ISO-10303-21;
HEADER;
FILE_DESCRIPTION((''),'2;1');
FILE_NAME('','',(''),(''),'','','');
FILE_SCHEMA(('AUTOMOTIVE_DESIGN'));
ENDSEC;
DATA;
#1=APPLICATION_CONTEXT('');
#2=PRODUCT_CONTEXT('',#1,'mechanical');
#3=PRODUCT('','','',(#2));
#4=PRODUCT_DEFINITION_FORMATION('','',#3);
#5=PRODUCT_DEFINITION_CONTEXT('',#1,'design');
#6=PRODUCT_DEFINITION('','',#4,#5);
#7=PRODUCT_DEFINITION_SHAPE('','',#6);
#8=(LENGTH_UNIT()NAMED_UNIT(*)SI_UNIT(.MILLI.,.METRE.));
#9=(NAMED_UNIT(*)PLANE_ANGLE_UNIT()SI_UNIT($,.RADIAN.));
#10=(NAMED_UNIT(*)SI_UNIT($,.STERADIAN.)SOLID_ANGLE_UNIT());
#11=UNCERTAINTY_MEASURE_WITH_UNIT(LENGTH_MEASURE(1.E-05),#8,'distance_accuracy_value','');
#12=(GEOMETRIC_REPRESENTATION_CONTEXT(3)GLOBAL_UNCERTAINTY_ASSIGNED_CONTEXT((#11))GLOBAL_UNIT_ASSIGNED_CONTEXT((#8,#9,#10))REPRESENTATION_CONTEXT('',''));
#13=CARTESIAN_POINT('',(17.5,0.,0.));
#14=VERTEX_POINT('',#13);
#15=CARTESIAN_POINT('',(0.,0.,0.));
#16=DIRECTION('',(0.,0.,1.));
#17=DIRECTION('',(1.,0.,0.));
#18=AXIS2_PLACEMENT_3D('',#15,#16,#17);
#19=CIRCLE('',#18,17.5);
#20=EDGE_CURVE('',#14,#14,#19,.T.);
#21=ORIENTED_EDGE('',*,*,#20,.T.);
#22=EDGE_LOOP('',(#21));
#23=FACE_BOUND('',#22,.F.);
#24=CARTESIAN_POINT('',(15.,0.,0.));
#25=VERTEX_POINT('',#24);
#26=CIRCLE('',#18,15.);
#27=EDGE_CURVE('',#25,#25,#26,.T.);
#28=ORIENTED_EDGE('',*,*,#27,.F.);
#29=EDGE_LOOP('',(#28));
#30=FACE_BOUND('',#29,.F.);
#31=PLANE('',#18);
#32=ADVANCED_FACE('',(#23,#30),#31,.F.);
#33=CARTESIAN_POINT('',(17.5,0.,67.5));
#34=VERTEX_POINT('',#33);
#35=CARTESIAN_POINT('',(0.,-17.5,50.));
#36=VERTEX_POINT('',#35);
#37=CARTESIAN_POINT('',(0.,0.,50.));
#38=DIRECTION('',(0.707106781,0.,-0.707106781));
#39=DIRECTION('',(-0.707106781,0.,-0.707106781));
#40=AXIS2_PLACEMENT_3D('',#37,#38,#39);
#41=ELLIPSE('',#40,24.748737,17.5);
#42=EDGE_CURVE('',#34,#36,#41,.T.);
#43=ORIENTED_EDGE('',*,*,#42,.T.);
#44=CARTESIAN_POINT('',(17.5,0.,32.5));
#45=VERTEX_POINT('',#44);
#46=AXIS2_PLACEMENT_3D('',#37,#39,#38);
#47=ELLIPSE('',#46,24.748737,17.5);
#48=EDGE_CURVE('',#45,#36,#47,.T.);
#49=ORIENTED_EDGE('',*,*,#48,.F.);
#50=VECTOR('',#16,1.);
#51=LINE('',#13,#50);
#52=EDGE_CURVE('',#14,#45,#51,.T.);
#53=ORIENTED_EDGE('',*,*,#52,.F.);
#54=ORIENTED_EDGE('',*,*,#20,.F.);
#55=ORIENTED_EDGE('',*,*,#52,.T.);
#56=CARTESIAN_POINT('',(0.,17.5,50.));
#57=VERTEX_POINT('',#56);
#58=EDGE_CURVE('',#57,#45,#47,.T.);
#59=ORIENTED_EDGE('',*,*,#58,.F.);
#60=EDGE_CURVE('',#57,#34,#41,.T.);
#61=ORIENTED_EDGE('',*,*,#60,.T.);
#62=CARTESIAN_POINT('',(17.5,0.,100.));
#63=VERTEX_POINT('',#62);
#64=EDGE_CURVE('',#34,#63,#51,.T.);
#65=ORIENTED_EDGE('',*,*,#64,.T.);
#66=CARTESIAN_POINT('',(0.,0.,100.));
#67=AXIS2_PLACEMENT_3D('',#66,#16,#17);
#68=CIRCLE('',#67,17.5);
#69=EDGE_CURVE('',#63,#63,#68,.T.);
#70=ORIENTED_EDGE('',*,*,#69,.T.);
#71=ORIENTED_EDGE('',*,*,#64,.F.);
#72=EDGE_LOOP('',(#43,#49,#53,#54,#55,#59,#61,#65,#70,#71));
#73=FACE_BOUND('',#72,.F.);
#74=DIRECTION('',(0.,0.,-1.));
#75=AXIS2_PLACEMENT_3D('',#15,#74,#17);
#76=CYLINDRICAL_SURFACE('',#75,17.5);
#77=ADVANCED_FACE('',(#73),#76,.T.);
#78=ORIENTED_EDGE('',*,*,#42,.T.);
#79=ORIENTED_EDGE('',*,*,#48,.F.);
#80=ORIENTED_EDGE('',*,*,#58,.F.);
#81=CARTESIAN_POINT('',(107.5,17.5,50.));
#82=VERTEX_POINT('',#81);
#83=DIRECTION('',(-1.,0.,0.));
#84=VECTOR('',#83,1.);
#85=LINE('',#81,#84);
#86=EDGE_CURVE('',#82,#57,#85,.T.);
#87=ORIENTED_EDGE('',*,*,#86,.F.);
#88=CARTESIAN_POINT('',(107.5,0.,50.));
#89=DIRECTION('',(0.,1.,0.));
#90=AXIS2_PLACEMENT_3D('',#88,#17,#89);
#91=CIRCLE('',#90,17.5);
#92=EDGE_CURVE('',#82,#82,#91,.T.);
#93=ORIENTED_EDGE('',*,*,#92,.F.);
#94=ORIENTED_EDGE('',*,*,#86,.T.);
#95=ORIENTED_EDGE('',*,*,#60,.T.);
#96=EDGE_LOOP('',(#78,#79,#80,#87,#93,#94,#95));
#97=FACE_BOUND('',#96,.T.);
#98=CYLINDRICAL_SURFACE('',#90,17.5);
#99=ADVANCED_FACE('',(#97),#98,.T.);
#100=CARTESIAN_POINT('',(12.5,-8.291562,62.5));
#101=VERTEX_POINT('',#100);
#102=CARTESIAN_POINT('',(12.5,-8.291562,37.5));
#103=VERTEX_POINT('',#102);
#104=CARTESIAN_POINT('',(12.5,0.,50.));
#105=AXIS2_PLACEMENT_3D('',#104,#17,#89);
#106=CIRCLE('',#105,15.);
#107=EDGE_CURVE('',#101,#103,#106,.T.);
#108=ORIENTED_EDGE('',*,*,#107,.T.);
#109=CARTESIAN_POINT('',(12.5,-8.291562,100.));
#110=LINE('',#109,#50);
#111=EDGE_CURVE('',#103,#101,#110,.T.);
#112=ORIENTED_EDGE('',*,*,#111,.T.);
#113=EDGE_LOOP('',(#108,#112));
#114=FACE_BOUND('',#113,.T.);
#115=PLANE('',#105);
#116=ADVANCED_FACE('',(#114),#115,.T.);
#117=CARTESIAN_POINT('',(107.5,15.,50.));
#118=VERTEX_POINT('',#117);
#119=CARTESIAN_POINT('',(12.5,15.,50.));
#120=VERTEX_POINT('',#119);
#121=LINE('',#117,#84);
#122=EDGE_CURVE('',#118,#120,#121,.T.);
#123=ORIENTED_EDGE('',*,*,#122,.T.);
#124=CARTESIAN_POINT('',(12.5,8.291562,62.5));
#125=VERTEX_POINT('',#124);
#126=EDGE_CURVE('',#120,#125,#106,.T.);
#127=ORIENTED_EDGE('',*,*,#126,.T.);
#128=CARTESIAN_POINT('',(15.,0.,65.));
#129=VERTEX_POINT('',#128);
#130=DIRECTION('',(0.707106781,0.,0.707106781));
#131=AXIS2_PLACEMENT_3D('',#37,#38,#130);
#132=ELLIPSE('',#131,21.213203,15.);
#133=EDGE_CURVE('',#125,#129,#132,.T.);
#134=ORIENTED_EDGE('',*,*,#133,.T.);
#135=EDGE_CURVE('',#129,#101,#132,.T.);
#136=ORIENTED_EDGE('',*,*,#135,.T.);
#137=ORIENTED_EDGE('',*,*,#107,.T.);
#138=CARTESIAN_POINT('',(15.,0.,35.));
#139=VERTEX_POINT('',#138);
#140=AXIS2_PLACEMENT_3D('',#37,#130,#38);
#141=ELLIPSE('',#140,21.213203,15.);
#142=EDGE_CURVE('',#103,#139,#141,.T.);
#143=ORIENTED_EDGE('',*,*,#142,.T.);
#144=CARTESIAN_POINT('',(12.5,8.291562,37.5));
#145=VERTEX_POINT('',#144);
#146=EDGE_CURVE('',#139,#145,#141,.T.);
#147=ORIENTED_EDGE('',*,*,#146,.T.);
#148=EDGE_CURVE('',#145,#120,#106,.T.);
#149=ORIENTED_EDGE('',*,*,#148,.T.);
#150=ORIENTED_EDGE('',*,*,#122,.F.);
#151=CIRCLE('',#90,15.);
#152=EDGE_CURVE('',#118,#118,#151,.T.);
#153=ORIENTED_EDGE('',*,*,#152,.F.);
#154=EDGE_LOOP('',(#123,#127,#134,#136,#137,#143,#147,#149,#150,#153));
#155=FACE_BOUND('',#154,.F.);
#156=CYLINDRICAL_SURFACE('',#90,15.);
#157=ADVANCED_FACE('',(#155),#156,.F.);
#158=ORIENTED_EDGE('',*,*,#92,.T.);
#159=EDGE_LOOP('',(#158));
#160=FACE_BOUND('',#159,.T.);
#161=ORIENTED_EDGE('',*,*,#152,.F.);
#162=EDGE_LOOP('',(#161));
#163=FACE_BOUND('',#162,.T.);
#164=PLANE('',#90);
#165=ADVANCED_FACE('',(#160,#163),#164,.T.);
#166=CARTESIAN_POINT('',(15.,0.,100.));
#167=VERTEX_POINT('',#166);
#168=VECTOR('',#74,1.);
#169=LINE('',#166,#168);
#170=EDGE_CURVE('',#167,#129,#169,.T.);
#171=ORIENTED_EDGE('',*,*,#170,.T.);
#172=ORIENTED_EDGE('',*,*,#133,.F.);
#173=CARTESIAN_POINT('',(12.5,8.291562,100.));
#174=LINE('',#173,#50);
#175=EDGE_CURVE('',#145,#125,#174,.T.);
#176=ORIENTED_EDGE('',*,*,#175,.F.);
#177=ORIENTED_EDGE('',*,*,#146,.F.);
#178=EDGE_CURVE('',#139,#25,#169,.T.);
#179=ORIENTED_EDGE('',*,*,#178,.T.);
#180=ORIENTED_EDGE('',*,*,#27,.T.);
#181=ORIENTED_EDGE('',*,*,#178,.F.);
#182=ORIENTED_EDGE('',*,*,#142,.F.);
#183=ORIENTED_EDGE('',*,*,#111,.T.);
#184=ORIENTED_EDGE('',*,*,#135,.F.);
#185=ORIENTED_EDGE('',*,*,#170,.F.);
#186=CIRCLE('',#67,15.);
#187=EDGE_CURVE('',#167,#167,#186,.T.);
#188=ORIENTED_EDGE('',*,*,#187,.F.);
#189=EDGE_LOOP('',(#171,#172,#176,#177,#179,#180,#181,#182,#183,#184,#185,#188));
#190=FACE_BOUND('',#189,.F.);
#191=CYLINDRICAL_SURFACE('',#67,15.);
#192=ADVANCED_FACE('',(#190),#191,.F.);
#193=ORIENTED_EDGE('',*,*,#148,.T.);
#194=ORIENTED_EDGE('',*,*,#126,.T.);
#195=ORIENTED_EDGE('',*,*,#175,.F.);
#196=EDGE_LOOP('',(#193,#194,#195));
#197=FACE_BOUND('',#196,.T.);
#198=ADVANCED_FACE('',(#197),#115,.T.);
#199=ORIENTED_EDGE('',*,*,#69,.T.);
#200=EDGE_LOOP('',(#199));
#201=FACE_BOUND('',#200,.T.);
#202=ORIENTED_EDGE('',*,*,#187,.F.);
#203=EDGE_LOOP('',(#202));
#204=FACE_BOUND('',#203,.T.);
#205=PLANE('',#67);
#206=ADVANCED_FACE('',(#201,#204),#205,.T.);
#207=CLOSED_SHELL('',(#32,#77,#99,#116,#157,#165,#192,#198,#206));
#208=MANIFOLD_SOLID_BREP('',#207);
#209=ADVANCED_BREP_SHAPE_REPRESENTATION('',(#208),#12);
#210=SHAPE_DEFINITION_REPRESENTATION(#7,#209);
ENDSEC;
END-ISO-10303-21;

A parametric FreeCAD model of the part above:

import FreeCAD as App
import Part
import Sketcher
from FreeCAD import Vector
Q = App.Units.Quantity

doc = App.newDocument("Part")
body = doc.addObject("PartDesign::Body", "Body")

# Sketch on XY plane
sketch1 = body.newObject("Sketcher::SketchObject", "Sketch")
sketch1.AttachmentSupport = (doc.getObject("XY_Plane"), [""])
sketch1.MapMode = "FlatFace"
sketch1.addGeometry(Part.Circle(Vector(0, 0, 0), Vector(0, 0, 1), 18), False)
sketch1.addConstraint(Sketcher.Constraint("Coincident", 0, 3, -1, 1))
sketch1.addConstraint(Sketcher.Constraint("Diameter", 0, Q("35 mm")))
pad1 = body.newObject("PartDesign::Pad", "Pad")
pad1.Profile = sketch1
pad1.Length = 100

# Sketch on YZ plane
sketch2 = body.newObject("Sketcher::SketchObject", "Sketch001")
sketch2.AttachmentSupport = (doc.getObject("YZ_Plane"), [""])
sketch2.MapMode = "FlatFace"
sketch2.AttachmentOffset = App.Placement(Vector(0, 0, 107.5), App.Rotation())
sketch2.addGeometry(Part.Circle(Vector(0, 50, 0), Vector(0, 0, 1), 18), False)
sketch2.addConstraint(Sketcher.Constraint("PointOnObject", 0, 3, -2))
sketch2.addConstraint(Sketcher.Constraint("Diameter", 0, Q("35 mm")))
sketch2.addConstraint(Sketcher.Constraint("DistanceY", -1, 1, 0, 3, Q("50 mm")))
pad2 = body.newObject("PartDesign::Pad", "Pad001")
pad2.Profile = sketch2
pad2.Length = 107.5
pad2.Reversed = True

# Sketch on YZ plane
sketch3 = body.newObject("Sketcher::SketchObject", "Sketch002")
sketch3.AttachmentSupport = (doc.getObject("YZ_Plane"), [""])
sketch3.MapMode = "FlatFace"
sketch3.AttachmentOffset = App.Placement(Vector(0, 0, 107.5), App.Rotation())
sketch3.addGeometry(Part.Circle(Vector(0, 50, 0), Vector(0, 0, 1), 15), False)
sketch3.addConstraint(Sketcher.Constraint("PointOnObject", 0, 3, -2))
sketch3.addConstraint(Sketcher.Constraint("Diameter", 0, Q("30 mm")))
sketch3.addConstraint(Sketcher.Constraint("DistanceY", -1, 1, 0, 3, Q("50 mm")))
pocket1 = body.newObject("PartDesign::Pocket", "Pocket")
pocket1.Profile = sketch3
pocket1.Length = 95

# Sketch on XY plane
sketch4 = body.newObject("Sketcher::SketchObject", "Sketch003")
sketch4.AttachmentSupport = (doc.getObject("XY_Plane"), [""])
sketch4.MapMode = "FlatFace"
sketch4.AttachmentOffset = App.Placement(Vector(0, 0, 100), App.Rotation())
sketch4.addGeometry(Part.Circle(Vector(0, 0, 0), Vector(0, 0, 1), 15), False)
sketch4.addConstraint(Sketcher.Constraint("Coincident", 0, 3, -1, 1))
sketch4.addConstraint(Sketcher.Constraint("Diameter", 0, Q("30 mm")))
pocket2 = body.newObject("PartDesign::Pocket", "Pocket001")
pocket2.Profile = sketch4
pocket2.Type = "ThroughAll"

doc.recompute()
